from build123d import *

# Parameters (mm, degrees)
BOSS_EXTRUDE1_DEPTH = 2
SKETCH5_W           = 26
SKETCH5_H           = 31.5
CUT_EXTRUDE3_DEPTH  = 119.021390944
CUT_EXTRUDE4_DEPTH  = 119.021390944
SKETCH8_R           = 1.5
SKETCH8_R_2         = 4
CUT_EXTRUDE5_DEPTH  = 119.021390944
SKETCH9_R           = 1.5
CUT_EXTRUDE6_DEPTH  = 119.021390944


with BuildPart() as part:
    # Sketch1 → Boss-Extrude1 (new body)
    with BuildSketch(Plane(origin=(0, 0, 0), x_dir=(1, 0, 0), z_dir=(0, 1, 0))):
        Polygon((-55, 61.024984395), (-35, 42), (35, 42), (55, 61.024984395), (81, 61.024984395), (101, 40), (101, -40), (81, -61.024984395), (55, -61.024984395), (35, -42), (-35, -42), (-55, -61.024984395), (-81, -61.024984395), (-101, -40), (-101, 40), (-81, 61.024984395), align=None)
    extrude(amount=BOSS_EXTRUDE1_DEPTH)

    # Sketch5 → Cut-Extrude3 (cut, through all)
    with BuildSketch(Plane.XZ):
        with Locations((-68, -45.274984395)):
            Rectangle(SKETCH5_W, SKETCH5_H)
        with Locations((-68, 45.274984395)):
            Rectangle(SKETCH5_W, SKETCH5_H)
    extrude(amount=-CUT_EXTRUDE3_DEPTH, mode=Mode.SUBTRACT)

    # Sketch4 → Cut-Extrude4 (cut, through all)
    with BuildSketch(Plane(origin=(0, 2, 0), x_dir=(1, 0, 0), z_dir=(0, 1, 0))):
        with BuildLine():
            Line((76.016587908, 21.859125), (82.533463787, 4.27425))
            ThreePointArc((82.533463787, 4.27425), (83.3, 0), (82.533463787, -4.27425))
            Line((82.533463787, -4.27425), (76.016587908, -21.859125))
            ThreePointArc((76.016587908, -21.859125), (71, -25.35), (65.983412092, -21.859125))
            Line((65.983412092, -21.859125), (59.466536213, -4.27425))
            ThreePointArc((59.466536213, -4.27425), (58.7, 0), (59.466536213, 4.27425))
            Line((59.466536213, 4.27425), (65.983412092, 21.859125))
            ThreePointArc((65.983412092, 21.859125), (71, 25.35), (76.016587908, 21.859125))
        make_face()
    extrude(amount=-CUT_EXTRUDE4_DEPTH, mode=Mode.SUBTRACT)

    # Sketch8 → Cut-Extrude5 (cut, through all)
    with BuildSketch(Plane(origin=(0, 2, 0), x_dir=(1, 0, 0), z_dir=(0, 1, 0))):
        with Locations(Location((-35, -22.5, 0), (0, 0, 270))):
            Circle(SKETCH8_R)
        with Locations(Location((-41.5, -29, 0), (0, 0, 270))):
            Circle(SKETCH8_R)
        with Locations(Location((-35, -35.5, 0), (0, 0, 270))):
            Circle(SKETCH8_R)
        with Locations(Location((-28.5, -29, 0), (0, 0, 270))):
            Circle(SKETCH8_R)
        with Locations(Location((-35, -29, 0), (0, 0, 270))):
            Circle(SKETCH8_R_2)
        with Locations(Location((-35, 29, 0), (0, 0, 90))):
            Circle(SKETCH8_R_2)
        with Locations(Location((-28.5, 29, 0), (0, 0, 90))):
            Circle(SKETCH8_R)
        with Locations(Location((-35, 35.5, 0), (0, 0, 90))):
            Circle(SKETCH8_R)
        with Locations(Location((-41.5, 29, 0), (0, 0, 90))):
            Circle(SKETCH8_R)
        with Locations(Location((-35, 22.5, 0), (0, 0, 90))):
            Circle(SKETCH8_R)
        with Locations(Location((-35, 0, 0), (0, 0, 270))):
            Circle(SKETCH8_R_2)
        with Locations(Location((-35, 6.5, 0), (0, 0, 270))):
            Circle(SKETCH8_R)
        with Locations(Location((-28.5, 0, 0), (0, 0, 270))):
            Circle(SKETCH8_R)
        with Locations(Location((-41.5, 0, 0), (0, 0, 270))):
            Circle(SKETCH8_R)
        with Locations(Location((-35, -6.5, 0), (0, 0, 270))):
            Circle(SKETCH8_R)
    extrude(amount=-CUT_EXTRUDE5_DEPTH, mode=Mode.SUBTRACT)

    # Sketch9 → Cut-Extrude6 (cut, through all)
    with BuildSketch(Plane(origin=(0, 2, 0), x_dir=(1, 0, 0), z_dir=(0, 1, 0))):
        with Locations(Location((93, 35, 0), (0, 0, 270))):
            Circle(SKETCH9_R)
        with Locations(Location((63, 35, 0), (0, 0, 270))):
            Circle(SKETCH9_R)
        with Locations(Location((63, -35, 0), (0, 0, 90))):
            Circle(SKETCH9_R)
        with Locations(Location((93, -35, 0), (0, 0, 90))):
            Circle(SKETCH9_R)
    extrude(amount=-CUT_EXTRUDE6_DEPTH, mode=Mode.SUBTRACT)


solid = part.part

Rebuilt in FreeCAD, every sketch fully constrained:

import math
import FreeCAD as App
import Part
import Sketcher
from FreeCAD import Vector

doc = App.newDocument("Part")
body = doc.addObject("PartDesign::Body", "Body")

# Sketch on XZ plane
sketch1 = doc.addObject("Sketcher::SketchObject", "Sketch")
body.addObject(sketch1)
sketch1.AttachmentSupport = (doc.XZ_Plane, [""])
sketch1.MapMode = "FlatFace"
sketch1.addGeometry(Part.LineSegment(Vector(-35, -42, 0), Vector(-55, -61, 0)), False)
sketch1.addGeometry(Part.LineSegment(Vector(-55, -61, 0), Vector(-81, -61, 0)), False)
sketch1.addGeometry(Part.LineSegment(Vector(-81, -61, 0), Vector(-101, -40, 0)), False)
sketch1.addGeometry(Part.LineSegment(Vector(-101, -40, 0), Vector(-101, 40, 0)), False)
sketch1.addGeometry(Part.LineSegment(Vector(-101, 40, 0), Vector(-81, 61, 0)), False)
sketch1.addGeometry(Part.LineSegment(Vector(-81, 61, 0), Vector(-55, 61, 0)), False)
sketch1.addGeometry(Part.LineSegment(Vector(-55, 61, 0), Vector(-35, 42, 0)), False)
sketch1.addGeometry(Part.LineSegment(Vector(-35, 42, 0), Vector(35, 42, 0)), False)
sketch1.addGeometry(Part.LineSegment(Vector(35, 42, 0), Vector(55, 61, 0)), False)
sketch1.addGeometry(Part.LineSegment(Vector(55, 61, 0), Vector(81, 61, 0)), False)
sketch1.addGeometry(Part.LineSegment(Vector(81, 61, 0), Vector(101, 40, 0)), False)
sketch1.addGeometry(Part.LineSegment(Vector(101, 40, 0), Vector(101, -40, 0)), False)
sketch1.addGeometry(Part.LineSegment(Vector(101, -40, 0), Vector(81, -61, 0)), False)
sketch1.addGeometry(Part.LineSegment(Vector(81, -61, 0), Vector(55, -61, 0)), False)
sketch1.addGeometry(Part.LineSegment(Vector(55, -61, 0), Vector(35, -42, 0)), False)
sketch1.addGeometry(Part.LineSegment(Vector(35, -42, 0), Vector(-35, -42, 0)), False)
sketch1.addConstraint(Sketcher.Constraint("Coincident", 0, 2, 1, 1))
sketch1.addConstraint(Sketcher.Constraint("Coincident", 1, 2, 2, 1))
sketch1.addConstraint(Sketcher.Constraint("Coincident", 2, 2, 3, 1))
sketch1.addConstraint(Sketcher.Constraint("Coincident", 3, 2, 4, 1))
sketch1.addConstraint(Sketcher.Constraint("Coincident", 4, 2, 5, 1))
sketch1.addConstraint(Sketcher.Constraint("Coincident", 5, 2, 6, 1))
sketch1.addConstraint(Sketcher.Constraint("Coincident", 6, 2, 7, 1))
sketch1.addConstraint(Sketcher.Constraint("Coincident", 7, 2, 8, 1))
sketch1.addConstraint(Sketcher.Constraint("Coincident", 8, 2, 9, 1))
sketch1.addConstraint(Sketcher.Constraint("Coincident", 9, 2, 10, 1))
sketch1.addConstraint(Sketcher.Constraint("Coincident", 10, 2, 11, 1))
sketch1.addConstraint(Sketcher.Constraint("Coincident", 11, 2, 12, 1))
sketch1.addConstraint(Sketcher.Constraint("Coincident", 12, 2, 13, 1))
sketch1.addConstraint(Sketcher.Constraint("Coincident", 13, 2, 14, 1))
sketch1.addConstraint(Sketcher.Constraint("Coincident", 14, 2, 15, 1))
sketch1.addConstraint(Sketcher.Constraint("Coincident", 15, 2, 0, 1))
sketch1.addConstraint(Sketcher.Constraint("Horizontal", 1))
sketch1.addConstraint(Sketcher.Constraint("Vertical", 3))
sketch1.addConstraint(Sketcher.Constraint("Horizontal", 5))
sketch1.addConstraint(Sketcher.Constraint("Horizontal", 7))
sketch1.addConstraint(Sketcher.Constraint("Horizontal", 9))
sketch1.addConstraint(Sketcher.Constraint("Vertical", 11))
sketch1.addConstraint(Sketcher.Constraint("Horizontal", 13))
sketch1.addConstraint(Sketcher.Constraint("Horizontal", 15))
sketch1.addConstraint(Sketcher.Constraint("Symmetric", 0, 2, 8, 2, -1, 1))
sketch1.addConstraint(Sketcher.Constraint("Symmetric", 2, 2, 10, 2, -1, 1))
sketch1.addConstraint(Sketcher.Constraint("Symmetric", 4, 2, 12, 2, -1, 1))
sketch1.addConstraint(Sketcher.Constraint("Symmetric", 6, 2, 14, 2, -1, 1))
sketch1.addConstraint(Sketcher.Constraint("Symmetric", 5, 2, 8, 2, -2))
sketch1.addConstraint(Sketcher.Constraint("Perpendicular", 0, 2))
sketch1.addConstraint(Sketcher.Constraint("Perpendicular", 4, 6))
sketch1.addConstraint(Sketcher.Constraint("Perpendicular", 2, 8))
sketch1.addConstraint(Sketcher.Constraint("Perpendicular", 8, 10))
sketch1.addConstraint(Sketcher.Constraint("Perpendicular", 6, 12))
sketch1.addConstraint(Sketcher.Constraint("Perpendicular", 12, 14))
sketch1.addConstraint(Sketcher.Constraint("Horizontal", 3, 2, 10, 2))
sketch1.addConstraint(Sketcher.Constraint("Vertical", 1, 2, 4, 2))
sketch1.addConstraint(Sketcher.Constraint("DistanceX", 1, 2, 1, 1, 26.0))
sketch1.addConstraint(Sketcher.Constraint("DistanceX", 7, 1, 7, 2, 70.0))
sketch1.addConstraint(Sketcher.Constraint("DistanceY", 3, 1, 3, 2, 80.0))
sketch1.addConstraint(Sketcher.Constraint("DistanceX", 0, 2, -1, 1, 55.0))
sketch1.addConstraint(Sketcher.Constraint("DistanceX", 2, 2, -1, 1, 101.0))
sketch1.addConstraint(Sketcher.Constraint("DistanceY", -1, 1, 6, 2, 42.0))
pad1 = doc.addObject("PartDesign::Pad", "Pad")
body.addObject(pad1)
pad1.Profile = sketch1
pad1.Length = 2
pad1.Reversed = True

# Sketch on XZ plane
sketch2 = doc.addObject("Sketcher::SketchObject", "Sketch001")
body.addObject(sketch2)
sketch2.AttachmentSupport = (doc.XZ_Plane, [""])
sketch2.MapMode = "FlatFace"
sketch2.addGeometry(Part.LineSegment(Vector(-81, -30, 0), Vector(-81, -61, 0)), False)
sketch2.addGeometry(Part.LineSegment(Vector(-81, -61, 0), Vector(-55, -61, 0)), False)
sketch2.addGeometry(Part.LineSegment(Vector(-55, -61, 0), Vector(-55, -30, 0)), False)
sketch2.addGeometry(Part.LineSegment(Vector(-55, -30, 0), Vector(-81, -30, 0)), False)
sketch2.addGeometry(Part.LineSegment(Vector(-81, 61, 0), Vector(-81, 30, 0)), False)
sketch2.addGeometry(Part.LineSegment(Vector(-81, 30, 0), Vector(-55, 30, 0)), False)
sketch2.addGeometry(Part.LineSegment(Vector(-55, 30, 0), Vector(-55, 61, 0)), False)
sketch2.addGeometry(Part.LineSegment(Vector(-55, 61, 0), Vector(-81, 61, 0)), False)
sketch2.addConstraint(Sketcher.Constraint("Coincident", 0, 2, 1, 1))
sketch2.addConstraint(Sketcher.Constraint("Coincident", 1, 2, 2, 1))
sketch2.addConstraint(Sketcher.Constraint("Coincident", 2, 2, 3, 1))
sketch2.addConstraint(Sketcher.Constraint("Coincident", 3, 2, 0, 1))
sketch2.addConstraint(Sketcher.Constraint("Coincident", 4, 2, 5, 1))
sketch2.addConstraint(Sketcher.Constraint("Coincident", 5, 2, 6, 1))
sketch2.addConstraint(Sketcher.Constraint("Coincident", 6, 2, 7, 1))
sketch2.addConstraint(Sketcher.Constraint("Coincident", 7, 2, 4, 1))
sketch2.addConstraint(Sketcher.Constraint("Vertical", 0))
sketch2.addConstraint(Sketcher.Constraint("Horizontal", 1))
sketch2.addConstraint(Sketcher.Constraint("Vertical", 2))
sketch2.addConstraint(Sketcher.Constraint("Horizontal", 3))
sketch2.addConstraint(Sketcher.Constraint("Vertical", 4))
sketch2.addConstraint(Sketcher.Constraint("Horizontal", 5))
sketch2.addConstraint(Sketcher.Constraint("Vertical", 6))
sketch2.addConstraint(Sketcher.Constraint("Horizontal", 7))
sketch2.addConstraint(Sketcher.Constraint("Symmetric", 3, 2, 4, 2, -1))
sketch2.addConstraint(Sketcher.Constraint("Symmetric", 1, 2, 6, 2, -1))
sketch2.addConstraint(Sketcher.Constraint("DistanceX", 1, 1, 1, 2, 26.0))
sketch2.addConstraint(Sketcher.Constraint("DistanceY", 0, 2, 0, 1, 31.5))
sketch2.addConstraint(Sketcher.Constraint("DistanceX", 0, 2, -1, 1, 81.0))
sketch2.addConstraint(Sketcher.Constraint("DistanceY", 3, 2, 4, 2, 59.049969))
pocket1 = doc.addObject("PartDesign::Pocket", "Pocket")
body.addObject(pocket1)
pocket1.Profile = sketch2
pocket1.Type = "ThroughAll"

# Sketch on XZ plane
sketch3 = doc.addObject("Sketcher::SketchObject", "Sketch002")
body.addObject(sketch3)
sketch3.AttachmentSupport = (doc.XZ_Plane, [""])
sketch3.MapMode = "FlatFace"
sketch3.AttachmentOffset = App.Placement(Vector(0, 0, -2), App.Rotation())
sketch3.addGeometry(Part.LineSegment(Vector(83, -4, 0), Vector(76, -22, 0)), False)
sketch3.addGeometry(Part.ArcOfCircle(Part.Circle(Vector(71, -20, 0), Vector(0, 0, 1), 5), math.radians(-160), math.radians(-20)), False)
sketch3.addGeometry(Part.LineSegment(Vector(66, -22, 0), Vector(59, -4, 0)), False)
sketch3.addGeometry(Part.ArcOfCircle(Part.Circle(Vector(71, 0, 0), Vector(0, 0, 1), 12), math.radians(160), math.radians(200)), False)
sketch3.addGeometry(Part.LineSegment(Vector(59, 4, 0), Vector(66, 22, 0)), False)
sketch3.addGeometry(Part.ArcOfCircle(Part.Circle(Vector(71, 20, 0), Vector(0, 0, 1), 5), math.radians(20), math.radians(160)), False)
sketch3.addGeometry(Part.LineSegment(Vector(76, 22, 0), Vector(83, 4, 0)), False)
sketch3.addGeometry(Part.ArcOfCircle(Part.Circle(Vector(71, 0, 0), Vector(0, 0, 1), 12), math.radians(-20), math.radians(20)), False)
sketch3.addConstraint(Sketcher.Constraint("Tangent", 0, 2, 1, 2))
sketch3.addConstraint(Sketcher.Constraint("Tangent", 1, 1, 2, 1))
sketch3.addConstraint(Sketcher.Constraint("Tangent", 2, 2, 3, 2))
sketch3.addConstraint(Sketcher.Constraint("Tangent", 3, 1, 4, 1))
sketch3.addConstraint(Sketcher.Constraint("Tangent", 4, 2, 5, 2))
sketch3.addConstraint(Sketcher.Constraint("Tangent", 5, 1, 6, 1))
sketch3.addConstraint(Sketcher.Constraint("Tangent", 6, 2, 7, 2))
sketch3.addConstraint(Sketcher.Constraint("Tangent", 7, 1, 0, 1))
sketch3.addConstraint(Sketcher.Constraint("Coincident", 7, 3, 3, 3))
sketch3.addConstraint(Sketcher.Constraint("Equal", 1, 5))
sketch3.addConstraint(Sketcher.Constraint("Equal", 3, 7))
sketch3.addConstraint(Sketcher.Constraint("Symmetric", 1, 3, 5, 3, -1))
sketch3.addConstraint(Sketcher.Constraint("PointOnObject", 3, 3, -1))
sketch3.addConstraint(Sketcher.Constraint("Parallel", 0, 4))
sketch3.addConstraint(Sketcher.Constraint("Radius", 3, 12.3))
sketch3.addConstraint(Sketcher.Constraint("Radius", 1, 5.35))
sketch3.addConstraint(Sketcher.Constraint("DistanceX", -1, 1, 1, 3, 71.0))
sketch3.addConstraint(Sketcher.Constraint("DistanceY", 1, 3, -1, 1, 20.0))
pocket2 = doc.addObject("PartDesign::Pocket", "Pocket001")
body.addObject(pocket2)
pocket2.Profile = sketch3
pocket2.Type = "ThroughAll"
pocket2.Reversed = True

# Sketch on XZ plane
sketch4 = doc.addObject("Sketcher::SketchObject", "Sketch003")
body.addObject(sketch4)
sketch4.AttachmentSupport = (doc.XZ_Plane, [""])
sketch4.MapMode = "FlatFace"
sketch4.AttachmentOffset = App.Placement(Vector(0, 0, -2), App.Rotation())
sketch4.addGeometry(Part.Circle(Vector(-35, 22.5, 0), Vector(0, 0, 1), 1.5), False)
sketch4.addGeometry(Part.Circle(Vector(-41.5, 29, 0), Vector(0, 0, 1), 1.5), False)
sketch4.addGeometry(Part.Circle(Vector(-35, 35.5, 0), Vector(0, 0, 1), 1.5), False)
sketch4.addGeometry(Part.Circle(Vector(-28.5, 29, 0), Vector(0, 0, 1), 1.5), False)
sketch4.addGeometry(Part.Circle(Vector(-35, 29, 0), Vector(0, 0, 1), 4), False)
sketch4.addGeometry(Part.Circle(Vector(-35, -29, 0), Vector(0, 0, 1), 4), False)
sketch4.addGeometry(Part.Circle(Vector(-28.5, -29, 0), Vector(0, 0, 1), 1.5), False)
sketch4.addGeometry(Part.Circle(Vector(-35, -35.5, 0), Vector(0, 0, 1), 1.5), False)
sketch4.addGeometry(Part.Circle(Vector(-41.5, -29, 0), Vector(0, 0, 1), 1.5), False)
sketch4.addGeometry(Part.Circle(Vector(-35, -22.5, 0), Vector(0, 0, 1), 1.5), False)
sketch4.addGeometry(Part.Circle(Vector(-35, 0, 0), Vector(0, 0, 1), 4), False)
sketch4.addGeometry(Part.Circle(Vector(-35, -6.5, 0), Vector(0, 0, 1), 1.5), False)
sketch4.addGeometry(Part.Circle(Vector(-28.5, 0, 0), Vector(0, 0, 1), 1.5), False)
sketch4.addGeometry(Part.Circle(Vector(-41.5, 0, 0), Vector(0, 0, 1), 1.5), False)
sketch4.addGeometry(Part.Circle(Vector(-35, 6.5, 0), Vector(0, 0, 1), 1.5), False)
sketch4.addConstraint(Sketcher.Constraint("Equal", 0, 1))
sketch4.addConstraint(Sketcher.Constraint("Equal", 1, 2))
sketch4.addConstraint(Sketcher.Constraint("Equal", 2, 3))
sketch4.addConstraint(Sketcher.Constraint("Equal", 4, 5))
sketch4.addConstraint(Sketcher.Constraint("Equal", 3, 6))
sketch4.addConstraint(Sketcher.Constraint("Equal", 6, 7))
sketch4.addConstraint(Sketcher.Constraint("Equal", 7, 8))
sketch4.addConstraint(Sketcher.Constraint("Equal", 8, 9))
sketch4.addConstraint(Sketcher.Constraint("Equal", 5, 10))
sketch4.addConstraint(Sketcher.Constraint("Equal", 9, 11))
sketch4.addConstraint(Sketcher.Constraint("Equal", 11, 12))
sketch4.addConstraint(Sketcher.Constraint("Equal", 12, 13))
sketch4.addConstraint(Sketcher.Constraint("Equal", 13, 14))
sketch4.addConstraint(Sketcher.Constraint("Symmetric", 4, 3, 5, 3, -1))
sketch4.addConstraint(Sketcher.Constraint("Symmetric", 3, 3, 6, 3, -1))
sketch4.addConstraint(Sketcher.Constraint("Symmetric", 2, 3, 7, 3, -1))
sketch4.addConstraint(Sketcher.Constraint("Symmetric", 1, 3, 8, 3, -1))
sketch4.addConstraint(Sketcher.Constraint("Symmetric", 0, 3, 9, 3, -1))
sketch4.addConstraint(Sketcher.Constraint("Symmetric", 11, 3, 14, 3, -1))
sketch4.addConstraint(Sketcher.Constraint("PointOnObject", 10, 3, -1))
sketch4.addConstraint(Sketcher.Constraint("PointOnObject", 12, 3, -1))
sketch4.addConstraint(Sketcher.Constraint("PointOnObject", 13, 3, -1))
sketch4.addConstraint(Sketcher.Constraint("Horizontal", 1, 3, 3, 3))
sketch4.addConstraint(Sketcher.Constraint("Horizontal", 3, 3, 4, 3))
sketch4.addConstraint(Sketcher.Constraint("Vertical", 0, 3, 2, 3))
sketch4.addConstraint(Sketcher.Constraint("Vertical", 2, 3, 4, 3))
sketch4.addConstraint(Sketcher.Constraint("Vertical", 9, 3, 10, 3))
sketch4.addConstraint(Sketcher.Constraint("Vertical", 10, 3, 11, 3))
sketch4.addConstraint(Sketcher.Constraint("Vertical", 6, 3, 12, 3))
sketch4.addConstraint(Sketcher.Constraint("Vertical", 8, 3, 13, 3))
sketch4.addConstraint(Sketcher.Constraint("Diameter", 0, 3.0))
sketch4.addConstraint(Sketcher.Constraint("Diameter", 4, 8.0))
sketch4.addConstraint(Sketcher.Constraint("DistanceX", 0, 3, -1, 1, 35.0))
sketch4.addConstraint(Sketcher.Constraint("DistanceY", -1, 1, 1, 3, 29.0))
sketch4.addConstraint(Sketcher.Constraint("DistanceY", 0, 3, 2, 3, 13.0))
sketch4.addConstraint(Sketcher.Constraint("DistanceX", 1, 3, 3, 3, 13.0))
sketch4.addConstraint(Sketcher.Constraint("DistanceY", 7, 3, 0, 3, 58.0))
sketch4.addConstraint(Sketcher.Constraint("DistanceY", 9, 3, 11, 3, 16.0))
sketch4.addConstraint(Sketcher.Constraint("DistanceX", 1, 3, -1, 1, 41.5))
pocket3 = doc.addObject("PartDesign::Pocket", "Pocket002")
body.addObject(pocket3)
pocket3.Profile = sketch4
pocket3.Type = "ThroughAll"
pocket3.Reversed = True

# Sketch on XZ plane
sketch5 = doc.addObject("Sketcher::SketchObject", "Sketch004")
body.addObject(sketch5)
sketch5.AttachmentSupport = (doc.XZ_Plane, [""])
sketch5.MapMode = "FlatFace"
sketch5.AttachmentOffset = App.Placement(Vector(0, 0, -2), App.Rotation())
sketch5.addGeometry(Part.Circle(Vector(93, -35, 0), Vector(0, 0, 1), 1.5), False)
sketch5.addGeometry(Part.Circle(Vector(63, -35, 0), Vector(0, 0, 1), 1.5), False)
sketch5.addGeometry(Part.Circle(Vector(63, 35, 0), Vector(0, 0, 1), 1.5), False)
sketch5.addGeometry(Part.Circle(Vector(93, 35, 0), Vector(0, 0, 1), 1.5), False)
sketch5.addConstraint(Sketcher.Constraint("Equal", 0, 1))
sketch5.addConstraint(Sketcher.Constraint("Equal", 1, 2))
sketch5.addConstraint(Sketcher.Constraint("Equal", 2, 3))
sketch5.addConstraint(Sketcher.Constraint("Symmetric", 1, 3, 2, 3, -1))
sketch5.addConstraint(Sketcher.Constraint("Symmetric", 0, 3, 3, 3, -1))
sketch5.addConstraint(Sketcher.Constraint("Horizontal", 0, 3, 1, 3))
sketch5.addConstraint(Sketcher.Constraint("Diameter", 0, 3.0))
sketch5.addConstraint(Sketcher.Constraint("DistanceX", -1, 1, 0, 3, 93.0))
sketch5.addConstraint(Sketcher.Constraint("DistanceY", 0, 3, -1, 1, 35.0))
sketch5.addConstraint(Sketcher.Constraint("DistanceX", -1, 1, 1, 3, 63.0))
pocket4 = doc.addObject("PartDesign::Pocket", "Pocket003")
body.addObject(pocket4)
pocket4.Profile = sketch5
pocket4.Type = "ThroughAll"
pocket4.Reversed = True

doc.recompute()
